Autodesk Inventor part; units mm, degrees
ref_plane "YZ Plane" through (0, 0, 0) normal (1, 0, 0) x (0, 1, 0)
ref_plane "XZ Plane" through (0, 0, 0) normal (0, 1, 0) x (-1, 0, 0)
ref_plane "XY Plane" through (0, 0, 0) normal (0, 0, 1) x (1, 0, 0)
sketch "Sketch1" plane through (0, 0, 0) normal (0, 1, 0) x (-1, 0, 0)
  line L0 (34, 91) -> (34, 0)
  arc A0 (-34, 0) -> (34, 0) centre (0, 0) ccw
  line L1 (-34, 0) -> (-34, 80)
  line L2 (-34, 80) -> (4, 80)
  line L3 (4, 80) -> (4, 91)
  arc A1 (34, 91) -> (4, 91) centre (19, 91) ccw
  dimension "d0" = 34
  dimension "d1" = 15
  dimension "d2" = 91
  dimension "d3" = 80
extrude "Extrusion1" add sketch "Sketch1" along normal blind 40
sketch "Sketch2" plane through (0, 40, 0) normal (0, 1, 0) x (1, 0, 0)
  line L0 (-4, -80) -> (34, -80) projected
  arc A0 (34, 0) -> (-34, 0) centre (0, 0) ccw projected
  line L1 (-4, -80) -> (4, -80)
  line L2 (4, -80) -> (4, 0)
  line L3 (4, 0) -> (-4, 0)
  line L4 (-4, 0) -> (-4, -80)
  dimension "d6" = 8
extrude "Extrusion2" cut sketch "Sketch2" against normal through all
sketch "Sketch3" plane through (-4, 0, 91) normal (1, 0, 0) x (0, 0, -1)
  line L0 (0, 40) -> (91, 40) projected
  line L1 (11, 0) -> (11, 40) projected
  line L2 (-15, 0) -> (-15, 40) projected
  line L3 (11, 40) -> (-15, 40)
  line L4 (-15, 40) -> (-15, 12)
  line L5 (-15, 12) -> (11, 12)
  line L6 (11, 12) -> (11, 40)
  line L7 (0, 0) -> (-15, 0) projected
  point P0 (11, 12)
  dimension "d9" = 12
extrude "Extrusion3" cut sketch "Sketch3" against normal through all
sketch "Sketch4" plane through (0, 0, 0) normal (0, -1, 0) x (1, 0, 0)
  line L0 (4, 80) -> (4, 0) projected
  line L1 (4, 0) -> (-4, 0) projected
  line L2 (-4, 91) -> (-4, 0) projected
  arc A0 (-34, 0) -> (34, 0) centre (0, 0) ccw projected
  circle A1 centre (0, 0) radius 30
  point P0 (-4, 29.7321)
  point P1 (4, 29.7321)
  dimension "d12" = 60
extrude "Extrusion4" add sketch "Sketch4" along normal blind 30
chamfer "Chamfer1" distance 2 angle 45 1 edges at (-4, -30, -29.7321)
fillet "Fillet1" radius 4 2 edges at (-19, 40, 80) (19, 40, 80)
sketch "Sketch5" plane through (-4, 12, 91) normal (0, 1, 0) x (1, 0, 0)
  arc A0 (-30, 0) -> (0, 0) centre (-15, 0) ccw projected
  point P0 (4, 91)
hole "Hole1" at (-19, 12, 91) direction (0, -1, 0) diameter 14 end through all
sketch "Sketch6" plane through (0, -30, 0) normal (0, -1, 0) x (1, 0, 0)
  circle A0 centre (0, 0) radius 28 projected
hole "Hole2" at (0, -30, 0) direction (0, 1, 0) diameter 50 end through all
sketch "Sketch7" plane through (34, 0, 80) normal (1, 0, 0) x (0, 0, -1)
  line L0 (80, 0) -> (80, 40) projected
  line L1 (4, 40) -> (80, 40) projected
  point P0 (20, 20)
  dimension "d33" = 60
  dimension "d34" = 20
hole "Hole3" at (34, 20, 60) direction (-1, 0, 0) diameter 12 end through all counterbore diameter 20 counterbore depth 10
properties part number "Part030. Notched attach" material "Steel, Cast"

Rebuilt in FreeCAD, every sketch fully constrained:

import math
import FreeCAD as App
import Part
import Sketcher
Q = App.Units.Quantity


def edges_at(feature, points):
    """Names of the edges that pass closest to the given points."""
    edges = feature.Shape.Edges
    near = lambda p: min(range(len(edges)), key=lambda i: edges[i].distToShape(Part.Vertex(*p))[0])
    return sorted({f"Edge{near(p) + 1}" for p in points})

doc = App.newDocument("Part")
body = doc.addObject("PartDesign::Body", "Body")

# Sketch on XZ plane
sketch1 = body.newObject("Sketcher::SketchObject", "Sketch")
sketch1.AttachmentSupport = (doc.getObject("XZ_Plane"), [""])
sketch1.MapMode = "FlatFace"
sketch1.addGeometry([
    Part.LineSegment(App.Vector(-34, 0, 0), App.Vector(-34, 91, 0)),  # 0
    Part.ArcOfCircle(Part.Circle(App.Vector(-19, 91, 0), App.Vector(0, 0, 1), 15), math.radians(0), math.radians(180)),  # 1
    Part.LineSegment(App.Vector(-4, 91, 0), App.Vector(-4, 80, 0)),  # 2
    Part.LineSegment(App.Vector(-4, 80, 0), App.Vector(34, 80, 0)),  # 3
    Part.LineSegment(App.Vector(34, 80, 0), App.Vector(34, 0, 0)),  # 4
    Part.ArcOfCircle(Part.Circle(App.Vector(0, 0, 0), App.Vector(0, 0, 1), 34), math.radians(180), math.radians(360)),  # 5
], False)
sketch1.addConstraint([
    Sketcher.Constraint("Tangent", 0, 2, 1, 2),
    Sketcher.Constraint("Tangent", 1, 1, 2, 1),
    Sketcher.Constraint("Coincident", 2, 2, 3, 1),
    Sketcher.Constraint("Coincident", 3, 2, 4, 1),
    Sketcher.Constraint("Tangent", 4, 2, 5, 2),
    Sketcher.Constraint("Tangent", 5, 1, 0, 1),
    Sketcher.Constraint("Vertical", 0),
    Sketcher.Constraint("Vertical", 2),
    Sketcher.Constraint("Horizontal", 3),
    Sketcher.Constraint("Vertical", 4),
    Sketcher.Constraint("Coincident", 5, 3, -1, 1),
    Sketcher.Constraint("Radius", 1, Q("15 mm")),
    Sketcher.Constraint("Radius", 5, Q("34 mm")),
    Sketcher.Constraint("DistanceY", 0, 1, 0, 2, Q("91 mm")),
    Sketcher.Constraint("DistanceY", 4, 2, 4, 1, Q("80 mm")),
])
pad1 = body.newObject("PartDesign::Pad", "Pad")
pad1.Profile = sketch1
pad1.Length = 40
pad1.Reversed = True

# Sketch on XZ plane
sketch2 = body.newObject("Sketcher::SketchObject", "Sketch001")
sketch2.AttachmentSupport = (doc.getObject("XZ_Plane"), [""])
sketch2.MapMode = "FlatFace"
sketch2.AttachmentOffset = App.Placement(App.Vector(0, 0, -40), App.Rotation())
sketch2.addGeometry([
    Part.LineSegment(App.Vector(-4, 0, 0), App.Vector(-4, 80, 0)),
    Part.LineSegment(App.Vector(-4, 80, 0), App.Vector(4, 80, 0)),
    Part.LineSegment(App.Vector(4, 80, 0), App.Vector(4, 0, 0)),
    Part.LineSegment(App.Vector(4, 0, 0), App.Vector(-4, 0, 0)),
], False)
sketch2.addConstraint([
    Sketcher.Constraint("Coincident", 0, 2, 1, 1),
    Sketcher.Constraint("Coincident", 1, 2, 2, 1),
    Sketcher.Constraint("Coincident", 2, 2, 3, 1),
    Sketcher.Constraint("Coincident", 3, 2, 0, 1),
    Sketcher.Constraint("Vertical", 0),
    Sketcher.Constraint("Horizontal", 1),
    Sketcher.Constraint("Vertical", 2),
    Sketcher.Constraint("Horizontal", 3),
    Sketcher.Constraint("Symmetric", 2, 2, 3, 2, -1, 1),
    Sketcher.Constraint("DistanceX", 1, 1, 1, 2, Q("8 mm")),
    Sketcher.Constraint("DistanceY", 0, 1, 0, 2, Q("80 mm")),
])
pocket1 = body.newObject("PartDesign::Pocket", "Pocket")
pocket1.Profile = sketch2
pocket1.Type = "ThroughAll"
pocket1.Reversed = True

# Sketch on YZ plane
sketch3 = body.newObject("Sketcher::SketchObject", "Sketch002")
sketch3.AttachmentSupport = (doc.getObject("YZ_Plane"), [""])
sketch3.MapMode = "FlatFace"
sketch3.AttachmentOffset = App.Placement(App.Vector(0, 0, -4), App.Rotation())
sketch3.addGeometry([
    Part.LineSegment(App.Vector(40, 80, 0), App.Vector(40, 106, 0)),
    Part.LineSegment(App.Vector(40, 106, 0), App.Vector(12, 106, 0)),
    Part.LineSegment(App.Vector(12, 106, 0), App.Vector(12, 80, 0)),
    Part.LineSegment(App.Vector(12, 80, 0), App.Vector(40, 80, 0)),
], False)
sketch3.addConstraint([
    Sketcher.Constraint("Coincident", 0, 2, 1, 1),
    Sketcher.Constraint("Coincident", 1, 2, 2, 1),
    Sketcher.Constraint("Coincident", 2, 2, 3, 1),
    Sketcher.Constraint("Coincident", 3, 2, 0, 1),
    Sketcher.Constraint("Vertical", 0),
    Sketcher.Constraint("Horizontal", 1),
    Sketcher.Constraint("Vertical", 2),
    Sketcher.Constraint("Horizontal", 3),
    Sketcher.Constraint("DistanceX", -1, 1, 1, 2, Q("12 mm")),
    Sketcher.Constraint("DistanceX", 1, 2, 1, 1, Q("28 mm")),
    Sketcher.Constraint("DistanceY", 0, 1, 0, 2, Q("26 mm")),
    Sketcher.Constraint("DistanceY", -1, 1, 0, 2, Q("106 mm")),
])
pocket2 = body.newObject("PartDesign::Pocket", "Pocket001")
pocket2.Profile = sketch3
pocket2.Type = "ThroughAll"

# Sketch on XZ plane
sketch4 = body.newObject("Sketcher::SketchObject", "Sketch003")
sketch4.AttachmentSupport = (doc.getObject("XZ_Plane"), [""])
sketch4.MapMode = "FlatFace"
sketch4.addGeometry(Part.Circle(App.Vector(0, 0, 0), App.Vector(0, 0, 1), 30), False)
sketch4.addConstraint([
    Sketcher.Constraint("Coincident", 0, 3, -1, 1),
    Sketcher.Constraint("Diameter", 0, Q("60 mm")),
])
pad2 = body.newObject("PartDesign::Pad", "Pad001")
pad2.Profile = sketch4
pad2.Length = 30
doc.recompute()

chamfer = body.newObject("PartDesign::Chamfer", "Chamfer")
chamfer.Base = (pad2, edges_at(pad2, [(-4, -30, -29.732)]))
chamfer.Size = 2
doc.recompute()

fillet = body.newObject("PartDesign::Fillet", "Fillet")
fillet.Base = (chamfer, edges_at(chamfer, [(-19, 40, 80), (19, 40, 80)]))
fillet.Radius = 4

# Sketch on XZ plane
sketch5 = body.newObject("Sketcher::SketchObject", "Sketch004")
sketch5.AttachmentSupport = (doc.getObject("XZ_Plane"), [""])
sketch5.MapMode = "FlatFace"
sketch5.AttachmentOffset = App.Placement(App.Vector(0, 0, -12), App.Rotation())
sketch5.addGeometry(Part.Circle(App.Vector(-19, 91, 0), App.Vector(0, 0, 1), 7), False)
sketch5.addConstraint([
    Sketcher.Constraint("Diameter", 0, Q("14 mm")),
    Sketcher.Constraint("DistanceX", 0, 3, -1, 1, Q("19 mm")),
    Sketcher.Constraint("DistanceY", -1, 1, 0, 3, Q("91 mm")),
])
doc.recompute()
hole = body.newObject("PartDesign::Hole", "Hole")
hole.Profile = sketch5
hole.ThreadType = "None"
hole.Diameter = 14
hole.DepthType = "ThroughAll"
hole.Reversed = True

# Sketch on XZ plane
sketch6 = body.newObject("Sketcher::SketchObject", "Sketch005")
sketch6.AttachmentSupport = (doc.getObject("XZ_Plane"), [""])
sketch6.MapMode = "FlatFace"
sketch6.AttachmentOffset = App.Placement(App.Vector(0, 0, 30), App.Rotation())
sketch6.addGeometry(Part.Circle(App.Vector(0, 0, 0), App.Vector(0, 0, 1), 25), False)
sketch6.addConstraint([
    Sketcher.Constraint("Coincident", 0, 3, -1, 1),
    Sketcher.Constraint("Diameter", 0, Q("50 mm")),
])
doc.recompute()
hole2 = body.newObject("PartDesign::Hole", "Hole001")
hole2.Profile = sketch6
hole2.ThreadType = "None"
hole2.Diameter = 50
hole2.DepthType = "ThroughAll"

# Sketch on YZ plane
sketch7 = body.newObject("Sketcher::SketchObject", "Sketch006")
sketch7.AttachmentSupport = (doc.getObject("YZ_Plane"), [""])
sketch7.MapMode = "FlatFace"
sketch7.AttachmentOffset = App.Placement(App.Vector(0, 0, 34), App.Rotation())
sketch7.addGeometry(Part.Circle(App.Vector(20, 60, 0), App.Vector(0, 0, 1), 6), False)
sketch7.addConstraint([
    Sketcher.Constraint("Diameter", 0, Q("12 mm")),
    Sketcher.Constraint("DistanceX", -1, 1, 0, 3, Q("20 mm")),
    Sketcher.Constraint("DistanceY", -1, 1, 0, 3, Q("60 mm")),
])
doc.recompute()
hole3 = body.newObject("PartDesign::Hole", "Hole002")
hole3.Profile = sketch7
hole3.ThreadType = "None"
hole3.Diameter = 12
hole3.DepthType = "ThroughAll"
hole3.HoleCutType = "Counterbore"
hole3.HoleCutDiameter = 20
hole3.HoleCutDepth = 10

doc.recompute()
